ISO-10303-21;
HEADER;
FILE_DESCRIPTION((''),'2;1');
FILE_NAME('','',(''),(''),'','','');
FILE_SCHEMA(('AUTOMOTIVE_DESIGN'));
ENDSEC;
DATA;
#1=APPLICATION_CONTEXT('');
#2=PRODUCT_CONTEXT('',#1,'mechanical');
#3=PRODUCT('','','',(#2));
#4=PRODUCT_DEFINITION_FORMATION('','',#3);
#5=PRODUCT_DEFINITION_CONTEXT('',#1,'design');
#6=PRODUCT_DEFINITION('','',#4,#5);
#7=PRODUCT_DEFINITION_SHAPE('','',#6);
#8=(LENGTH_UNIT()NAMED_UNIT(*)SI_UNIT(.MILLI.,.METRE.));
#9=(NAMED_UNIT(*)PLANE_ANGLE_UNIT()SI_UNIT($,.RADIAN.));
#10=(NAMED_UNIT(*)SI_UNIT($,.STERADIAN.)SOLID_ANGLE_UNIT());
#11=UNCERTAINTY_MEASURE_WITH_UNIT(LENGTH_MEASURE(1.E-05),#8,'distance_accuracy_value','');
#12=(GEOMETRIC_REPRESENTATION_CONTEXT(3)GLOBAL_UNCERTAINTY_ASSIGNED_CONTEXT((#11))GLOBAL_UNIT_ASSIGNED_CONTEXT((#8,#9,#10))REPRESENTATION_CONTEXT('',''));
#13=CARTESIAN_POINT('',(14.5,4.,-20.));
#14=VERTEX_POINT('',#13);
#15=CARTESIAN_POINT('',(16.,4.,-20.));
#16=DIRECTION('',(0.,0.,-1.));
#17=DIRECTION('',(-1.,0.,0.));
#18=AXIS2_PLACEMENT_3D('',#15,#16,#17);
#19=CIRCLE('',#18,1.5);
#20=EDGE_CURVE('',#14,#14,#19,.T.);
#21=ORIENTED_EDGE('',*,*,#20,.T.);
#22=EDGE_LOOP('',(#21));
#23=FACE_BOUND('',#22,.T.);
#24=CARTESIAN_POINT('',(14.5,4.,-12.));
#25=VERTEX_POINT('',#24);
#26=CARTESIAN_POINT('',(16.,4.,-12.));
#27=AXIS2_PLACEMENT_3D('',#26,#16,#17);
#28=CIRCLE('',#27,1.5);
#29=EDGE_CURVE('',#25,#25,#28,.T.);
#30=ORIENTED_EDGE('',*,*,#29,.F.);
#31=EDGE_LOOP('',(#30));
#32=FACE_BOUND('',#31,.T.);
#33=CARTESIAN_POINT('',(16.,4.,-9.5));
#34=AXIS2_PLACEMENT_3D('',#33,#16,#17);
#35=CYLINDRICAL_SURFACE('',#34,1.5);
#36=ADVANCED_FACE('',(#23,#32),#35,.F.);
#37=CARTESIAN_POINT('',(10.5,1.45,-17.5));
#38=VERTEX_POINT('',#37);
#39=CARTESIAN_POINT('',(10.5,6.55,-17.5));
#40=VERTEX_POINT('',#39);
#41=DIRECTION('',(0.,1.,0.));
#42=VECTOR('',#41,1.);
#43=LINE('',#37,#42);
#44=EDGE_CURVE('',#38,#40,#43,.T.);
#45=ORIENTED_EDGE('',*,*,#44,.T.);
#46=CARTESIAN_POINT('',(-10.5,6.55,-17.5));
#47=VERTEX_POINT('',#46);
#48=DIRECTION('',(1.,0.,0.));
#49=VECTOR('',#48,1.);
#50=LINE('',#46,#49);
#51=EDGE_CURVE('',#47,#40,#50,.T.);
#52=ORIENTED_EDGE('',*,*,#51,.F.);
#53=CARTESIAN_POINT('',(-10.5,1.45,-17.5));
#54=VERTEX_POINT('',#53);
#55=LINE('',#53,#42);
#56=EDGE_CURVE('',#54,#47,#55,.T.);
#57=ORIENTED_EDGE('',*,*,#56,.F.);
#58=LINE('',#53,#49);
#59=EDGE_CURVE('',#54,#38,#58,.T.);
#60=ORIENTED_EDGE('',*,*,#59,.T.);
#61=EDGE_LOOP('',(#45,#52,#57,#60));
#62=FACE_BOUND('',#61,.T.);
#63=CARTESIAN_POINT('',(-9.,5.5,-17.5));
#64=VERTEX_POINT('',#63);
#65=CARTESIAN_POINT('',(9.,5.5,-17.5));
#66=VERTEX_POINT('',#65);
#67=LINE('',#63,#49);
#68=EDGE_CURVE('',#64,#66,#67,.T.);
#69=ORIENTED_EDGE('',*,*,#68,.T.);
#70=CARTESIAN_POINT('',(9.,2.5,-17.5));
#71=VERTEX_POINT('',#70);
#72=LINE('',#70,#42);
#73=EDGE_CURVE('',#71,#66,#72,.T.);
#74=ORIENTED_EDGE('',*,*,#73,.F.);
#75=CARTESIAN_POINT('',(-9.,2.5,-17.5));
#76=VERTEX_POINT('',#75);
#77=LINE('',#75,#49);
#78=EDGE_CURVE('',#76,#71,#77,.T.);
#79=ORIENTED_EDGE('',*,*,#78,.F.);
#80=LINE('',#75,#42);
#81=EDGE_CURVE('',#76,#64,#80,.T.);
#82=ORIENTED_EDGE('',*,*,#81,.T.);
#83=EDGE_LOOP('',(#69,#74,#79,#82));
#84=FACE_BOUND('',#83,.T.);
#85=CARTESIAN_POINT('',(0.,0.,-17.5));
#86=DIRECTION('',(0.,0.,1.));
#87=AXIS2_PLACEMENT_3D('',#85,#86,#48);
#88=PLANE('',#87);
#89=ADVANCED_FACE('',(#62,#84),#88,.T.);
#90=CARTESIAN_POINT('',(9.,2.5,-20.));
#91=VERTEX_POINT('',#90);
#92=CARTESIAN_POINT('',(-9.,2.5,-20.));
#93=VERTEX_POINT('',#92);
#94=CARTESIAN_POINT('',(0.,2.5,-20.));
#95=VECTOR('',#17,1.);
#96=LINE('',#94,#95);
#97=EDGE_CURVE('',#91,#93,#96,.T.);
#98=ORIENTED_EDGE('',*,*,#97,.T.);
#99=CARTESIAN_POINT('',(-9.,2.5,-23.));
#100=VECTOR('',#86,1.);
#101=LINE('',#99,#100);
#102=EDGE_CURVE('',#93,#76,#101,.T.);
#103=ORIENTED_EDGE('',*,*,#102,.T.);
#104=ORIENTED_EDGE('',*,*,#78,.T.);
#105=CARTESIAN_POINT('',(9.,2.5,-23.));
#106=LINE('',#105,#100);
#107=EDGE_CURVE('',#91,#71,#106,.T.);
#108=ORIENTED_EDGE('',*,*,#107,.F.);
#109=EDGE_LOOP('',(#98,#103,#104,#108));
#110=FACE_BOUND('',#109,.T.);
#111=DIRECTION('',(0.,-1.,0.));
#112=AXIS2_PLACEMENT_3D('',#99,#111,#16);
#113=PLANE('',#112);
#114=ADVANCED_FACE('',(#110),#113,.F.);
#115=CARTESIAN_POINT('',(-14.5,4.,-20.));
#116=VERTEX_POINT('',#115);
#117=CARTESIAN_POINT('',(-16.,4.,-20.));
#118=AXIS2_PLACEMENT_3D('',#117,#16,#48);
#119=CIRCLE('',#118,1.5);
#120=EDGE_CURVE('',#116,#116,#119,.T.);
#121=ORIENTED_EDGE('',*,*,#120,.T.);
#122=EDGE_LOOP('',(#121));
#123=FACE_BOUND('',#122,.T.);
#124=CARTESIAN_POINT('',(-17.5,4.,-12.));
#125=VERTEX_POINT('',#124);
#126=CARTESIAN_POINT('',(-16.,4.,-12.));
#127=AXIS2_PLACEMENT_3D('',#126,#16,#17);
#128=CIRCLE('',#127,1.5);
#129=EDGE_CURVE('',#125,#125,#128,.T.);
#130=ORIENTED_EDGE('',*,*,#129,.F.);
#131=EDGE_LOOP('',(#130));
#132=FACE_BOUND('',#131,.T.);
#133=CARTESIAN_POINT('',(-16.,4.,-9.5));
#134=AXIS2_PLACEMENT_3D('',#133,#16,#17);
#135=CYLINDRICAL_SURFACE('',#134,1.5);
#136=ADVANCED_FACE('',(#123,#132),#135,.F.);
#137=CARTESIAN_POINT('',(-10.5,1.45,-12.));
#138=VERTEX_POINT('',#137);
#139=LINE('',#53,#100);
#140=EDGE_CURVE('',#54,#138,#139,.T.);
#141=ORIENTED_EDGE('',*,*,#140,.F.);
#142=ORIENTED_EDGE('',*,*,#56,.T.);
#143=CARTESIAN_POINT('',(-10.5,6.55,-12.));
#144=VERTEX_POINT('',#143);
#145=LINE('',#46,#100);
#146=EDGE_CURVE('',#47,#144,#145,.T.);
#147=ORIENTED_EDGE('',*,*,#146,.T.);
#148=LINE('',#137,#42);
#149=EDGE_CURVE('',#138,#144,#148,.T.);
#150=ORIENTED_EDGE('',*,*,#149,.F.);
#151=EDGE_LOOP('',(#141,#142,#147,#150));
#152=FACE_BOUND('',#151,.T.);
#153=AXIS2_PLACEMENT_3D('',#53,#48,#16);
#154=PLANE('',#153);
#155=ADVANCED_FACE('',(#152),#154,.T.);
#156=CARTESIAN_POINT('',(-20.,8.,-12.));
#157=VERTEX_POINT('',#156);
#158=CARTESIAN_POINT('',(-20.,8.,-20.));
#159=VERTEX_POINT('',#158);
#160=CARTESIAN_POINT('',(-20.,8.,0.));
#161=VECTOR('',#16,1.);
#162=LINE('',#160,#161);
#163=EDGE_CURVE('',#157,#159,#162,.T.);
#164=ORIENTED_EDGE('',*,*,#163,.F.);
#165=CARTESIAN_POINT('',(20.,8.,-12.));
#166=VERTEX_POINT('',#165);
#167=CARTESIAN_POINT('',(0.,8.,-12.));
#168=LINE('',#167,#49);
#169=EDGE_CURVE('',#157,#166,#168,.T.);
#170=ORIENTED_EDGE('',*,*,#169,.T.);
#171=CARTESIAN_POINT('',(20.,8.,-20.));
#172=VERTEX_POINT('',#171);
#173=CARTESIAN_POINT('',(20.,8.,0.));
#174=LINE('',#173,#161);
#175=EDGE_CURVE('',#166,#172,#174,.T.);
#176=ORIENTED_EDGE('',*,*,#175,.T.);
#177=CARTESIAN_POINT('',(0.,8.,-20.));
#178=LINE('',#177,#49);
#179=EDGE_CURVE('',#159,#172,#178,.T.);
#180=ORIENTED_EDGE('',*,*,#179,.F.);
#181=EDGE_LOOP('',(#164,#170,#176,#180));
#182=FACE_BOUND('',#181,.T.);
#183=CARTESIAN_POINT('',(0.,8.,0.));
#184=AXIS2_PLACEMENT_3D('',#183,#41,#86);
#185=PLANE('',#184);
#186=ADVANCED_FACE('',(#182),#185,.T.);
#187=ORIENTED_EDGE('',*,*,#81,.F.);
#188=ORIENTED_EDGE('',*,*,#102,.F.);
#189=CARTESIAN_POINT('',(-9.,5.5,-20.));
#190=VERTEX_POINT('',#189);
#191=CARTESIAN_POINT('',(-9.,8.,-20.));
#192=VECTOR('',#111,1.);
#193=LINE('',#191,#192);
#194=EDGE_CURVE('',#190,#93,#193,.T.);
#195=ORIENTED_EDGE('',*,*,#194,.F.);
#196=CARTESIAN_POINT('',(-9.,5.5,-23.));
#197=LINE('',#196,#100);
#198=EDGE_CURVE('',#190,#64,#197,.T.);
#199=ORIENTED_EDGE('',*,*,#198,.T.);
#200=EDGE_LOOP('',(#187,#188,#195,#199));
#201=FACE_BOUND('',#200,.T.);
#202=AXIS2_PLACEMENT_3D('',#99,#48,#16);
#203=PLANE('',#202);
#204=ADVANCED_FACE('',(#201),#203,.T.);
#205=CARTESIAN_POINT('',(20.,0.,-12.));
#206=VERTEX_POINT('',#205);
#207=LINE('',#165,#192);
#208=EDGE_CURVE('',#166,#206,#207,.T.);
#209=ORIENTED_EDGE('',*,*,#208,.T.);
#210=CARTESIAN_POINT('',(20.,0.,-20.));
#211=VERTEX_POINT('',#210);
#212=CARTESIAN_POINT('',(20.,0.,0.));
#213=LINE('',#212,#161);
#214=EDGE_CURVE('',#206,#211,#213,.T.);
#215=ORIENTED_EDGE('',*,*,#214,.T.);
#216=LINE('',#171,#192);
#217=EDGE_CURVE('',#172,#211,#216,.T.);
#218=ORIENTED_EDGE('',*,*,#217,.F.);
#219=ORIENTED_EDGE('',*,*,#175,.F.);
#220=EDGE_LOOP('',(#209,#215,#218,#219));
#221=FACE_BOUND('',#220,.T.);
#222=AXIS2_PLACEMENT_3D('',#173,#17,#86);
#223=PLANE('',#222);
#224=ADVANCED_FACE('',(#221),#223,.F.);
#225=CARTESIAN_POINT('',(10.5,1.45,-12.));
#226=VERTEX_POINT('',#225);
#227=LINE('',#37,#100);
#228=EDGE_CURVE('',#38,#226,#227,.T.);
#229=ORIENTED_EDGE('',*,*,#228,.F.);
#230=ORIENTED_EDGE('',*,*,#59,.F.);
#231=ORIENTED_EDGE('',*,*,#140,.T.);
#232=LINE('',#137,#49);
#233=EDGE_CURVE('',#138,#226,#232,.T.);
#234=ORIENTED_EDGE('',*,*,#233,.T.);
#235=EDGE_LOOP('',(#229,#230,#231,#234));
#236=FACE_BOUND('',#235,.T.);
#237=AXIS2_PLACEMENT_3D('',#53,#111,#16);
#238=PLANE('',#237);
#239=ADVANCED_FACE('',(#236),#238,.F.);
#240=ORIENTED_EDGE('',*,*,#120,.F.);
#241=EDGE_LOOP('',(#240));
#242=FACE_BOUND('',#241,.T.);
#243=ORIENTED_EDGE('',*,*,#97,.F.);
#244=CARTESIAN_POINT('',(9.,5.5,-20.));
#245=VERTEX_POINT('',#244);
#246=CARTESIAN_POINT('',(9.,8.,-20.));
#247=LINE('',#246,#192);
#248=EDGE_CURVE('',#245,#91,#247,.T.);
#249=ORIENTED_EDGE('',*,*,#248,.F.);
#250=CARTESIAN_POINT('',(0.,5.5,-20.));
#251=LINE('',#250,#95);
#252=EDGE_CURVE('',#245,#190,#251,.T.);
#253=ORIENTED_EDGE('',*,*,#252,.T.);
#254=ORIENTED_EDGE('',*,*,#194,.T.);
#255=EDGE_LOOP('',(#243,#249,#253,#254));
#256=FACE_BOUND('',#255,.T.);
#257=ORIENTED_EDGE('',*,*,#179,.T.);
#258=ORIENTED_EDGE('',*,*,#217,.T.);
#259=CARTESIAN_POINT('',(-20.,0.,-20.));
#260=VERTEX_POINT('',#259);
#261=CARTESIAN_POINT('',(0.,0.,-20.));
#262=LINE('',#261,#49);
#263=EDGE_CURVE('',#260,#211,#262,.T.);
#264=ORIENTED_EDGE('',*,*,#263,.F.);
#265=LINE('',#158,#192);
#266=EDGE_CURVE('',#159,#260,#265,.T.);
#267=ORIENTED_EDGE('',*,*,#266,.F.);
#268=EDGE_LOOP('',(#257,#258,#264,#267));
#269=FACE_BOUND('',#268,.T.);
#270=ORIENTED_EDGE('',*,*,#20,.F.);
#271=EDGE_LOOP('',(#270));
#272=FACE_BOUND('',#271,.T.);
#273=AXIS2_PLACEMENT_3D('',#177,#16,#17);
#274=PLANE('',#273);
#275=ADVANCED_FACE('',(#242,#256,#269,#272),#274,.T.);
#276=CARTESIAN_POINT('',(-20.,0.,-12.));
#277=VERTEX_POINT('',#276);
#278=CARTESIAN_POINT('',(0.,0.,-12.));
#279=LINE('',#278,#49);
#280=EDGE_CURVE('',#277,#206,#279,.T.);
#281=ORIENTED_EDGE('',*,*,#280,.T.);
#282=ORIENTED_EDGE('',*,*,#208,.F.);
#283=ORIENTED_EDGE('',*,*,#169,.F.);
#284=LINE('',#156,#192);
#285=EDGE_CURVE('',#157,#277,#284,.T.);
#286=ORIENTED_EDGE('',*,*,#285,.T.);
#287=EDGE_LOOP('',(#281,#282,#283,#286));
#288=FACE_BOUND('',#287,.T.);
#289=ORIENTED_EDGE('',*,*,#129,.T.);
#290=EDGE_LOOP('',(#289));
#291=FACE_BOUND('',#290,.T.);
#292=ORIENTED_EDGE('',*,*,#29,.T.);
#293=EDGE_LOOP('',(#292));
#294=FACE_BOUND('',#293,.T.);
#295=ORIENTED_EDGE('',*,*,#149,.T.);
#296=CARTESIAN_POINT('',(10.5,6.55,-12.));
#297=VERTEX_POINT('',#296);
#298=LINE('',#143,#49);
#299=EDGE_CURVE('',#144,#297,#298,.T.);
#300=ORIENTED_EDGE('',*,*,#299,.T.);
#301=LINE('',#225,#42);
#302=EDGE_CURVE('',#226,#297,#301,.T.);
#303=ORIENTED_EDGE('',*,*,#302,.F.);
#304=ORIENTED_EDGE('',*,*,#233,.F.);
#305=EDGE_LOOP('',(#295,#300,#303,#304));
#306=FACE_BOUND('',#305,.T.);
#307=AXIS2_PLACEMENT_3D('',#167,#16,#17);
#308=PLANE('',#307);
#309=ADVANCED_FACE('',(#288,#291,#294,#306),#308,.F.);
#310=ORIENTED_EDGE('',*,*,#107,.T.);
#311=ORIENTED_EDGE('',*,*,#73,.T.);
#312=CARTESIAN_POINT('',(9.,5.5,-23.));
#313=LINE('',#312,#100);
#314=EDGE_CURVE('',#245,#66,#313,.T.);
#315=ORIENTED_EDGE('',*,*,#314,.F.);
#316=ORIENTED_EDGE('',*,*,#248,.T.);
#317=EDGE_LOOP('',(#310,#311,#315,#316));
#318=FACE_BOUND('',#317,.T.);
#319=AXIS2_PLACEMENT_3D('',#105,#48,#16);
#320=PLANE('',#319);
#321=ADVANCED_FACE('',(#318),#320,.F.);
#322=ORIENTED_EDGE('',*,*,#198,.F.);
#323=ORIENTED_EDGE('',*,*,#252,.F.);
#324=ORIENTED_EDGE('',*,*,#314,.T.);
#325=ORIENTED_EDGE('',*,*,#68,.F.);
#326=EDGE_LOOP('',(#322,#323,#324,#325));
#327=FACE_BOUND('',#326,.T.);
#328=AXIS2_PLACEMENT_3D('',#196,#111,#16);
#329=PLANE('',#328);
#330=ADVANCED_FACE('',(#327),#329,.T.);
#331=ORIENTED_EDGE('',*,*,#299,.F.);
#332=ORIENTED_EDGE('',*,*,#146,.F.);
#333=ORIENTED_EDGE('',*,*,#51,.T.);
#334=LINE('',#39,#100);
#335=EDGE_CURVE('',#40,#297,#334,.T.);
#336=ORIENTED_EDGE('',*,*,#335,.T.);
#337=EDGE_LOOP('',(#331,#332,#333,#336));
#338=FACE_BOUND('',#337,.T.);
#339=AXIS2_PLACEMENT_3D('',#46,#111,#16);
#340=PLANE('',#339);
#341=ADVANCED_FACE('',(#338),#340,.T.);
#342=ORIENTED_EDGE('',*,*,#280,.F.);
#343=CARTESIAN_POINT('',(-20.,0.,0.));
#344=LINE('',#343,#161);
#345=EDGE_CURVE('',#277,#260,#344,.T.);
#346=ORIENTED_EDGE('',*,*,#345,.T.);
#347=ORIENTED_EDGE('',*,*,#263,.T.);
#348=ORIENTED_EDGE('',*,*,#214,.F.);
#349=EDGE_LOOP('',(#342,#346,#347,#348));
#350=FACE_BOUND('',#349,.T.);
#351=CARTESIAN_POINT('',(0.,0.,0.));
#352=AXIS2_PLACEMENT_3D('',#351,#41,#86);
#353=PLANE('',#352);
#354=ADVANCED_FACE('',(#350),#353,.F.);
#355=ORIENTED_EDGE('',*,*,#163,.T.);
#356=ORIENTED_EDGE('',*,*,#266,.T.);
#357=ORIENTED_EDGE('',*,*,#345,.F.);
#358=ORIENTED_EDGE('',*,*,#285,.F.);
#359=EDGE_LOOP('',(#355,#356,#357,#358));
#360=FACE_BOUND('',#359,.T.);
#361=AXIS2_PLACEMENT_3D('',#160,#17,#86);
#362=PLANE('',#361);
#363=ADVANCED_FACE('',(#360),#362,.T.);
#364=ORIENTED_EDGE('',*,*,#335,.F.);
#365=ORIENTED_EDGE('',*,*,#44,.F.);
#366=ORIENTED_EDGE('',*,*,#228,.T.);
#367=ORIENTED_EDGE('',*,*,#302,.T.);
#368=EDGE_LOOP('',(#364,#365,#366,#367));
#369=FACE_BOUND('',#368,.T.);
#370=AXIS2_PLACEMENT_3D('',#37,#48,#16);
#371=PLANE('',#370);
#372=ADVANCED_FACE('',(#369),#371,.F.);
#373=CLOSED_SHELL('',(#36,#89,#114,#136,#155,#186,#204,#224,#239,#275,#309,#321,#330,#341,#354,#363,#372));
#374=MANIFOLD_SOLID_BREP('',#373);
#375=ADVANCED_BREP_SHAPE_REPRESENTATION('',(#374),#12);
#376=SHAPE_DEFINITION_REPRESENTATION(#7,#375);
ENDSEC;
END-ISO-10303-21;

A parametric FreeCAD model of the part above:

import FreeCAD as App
import Part
import Sketcher

doc = App.newDocument("Part")
body = doc.addObject("PartDesign::Body", "Body")

sketch1 = body.newObject("Sketcher::SketchObject", "Sketch")
sketch1.AttachmentSupport = (doc.getObject("XZ_Plane"), [""])
sketch1.MapMode = "FlatFace"
sketch1.addGeometry([
    Part.LineSegment(App.Vector(-20, -20, 0), App.Vector(-20, -12, 0)),
    Part.LineSegment(App.Vector(-20, -12, 0), App.Vector(20, -12, 0)),
    Part.LineSegment(App.Vector(20, -12, 0), App.Vector(20, -20, 0)),
    Part.LineSegment(App.Vector(20, -20, 0), App.Vector(-20, -20, 0)),
], False)
sketch1.addConstraint([
    Sketcher.Constraint("Coincident", 0, 2, 1, 1),
    Sketcher.Constraint("Coincident", 1, 2, 2, 1),
    Sketcher.Constraint("Coincident", 2, 2, 3, 1),
    Sketcher.Constraint("Coincident", 3, 2, 0, 1),
    Sketcher.Constraint("Vertical", 0),
    Sketcher.Constraint("Horizontal", 1),
    Sketcher.Constraint("Vertical", 2),
    Sketcher.Constraint("Horizontal", 3),
    Sketcher.Constraint("DistanceX", 1, 1, 1, 2, 40.0),
    Sketcher.Constraint("DistanceY", 0, 1, 0, 2, 8.0),
    Sketcher.Constraint("DistanceX", 0, 2, -1, 1, 20.0),
    Sketcher.Constraint("DistanceY", 0, 2, -1, 1, 12.0),
])
pad1 = body.newObject("PartDesign::Pad", "Pad")
pad1.Profile = sketch1
pad1.Length = 8
pad1.Reversed = True

sketch2 = body.newObject("Sketcher::SketchObject", "Sketch001")
sketch2.AttachmentSupport = (doc.getObject("XY_Plane"), [""])
sketch2.MapMode = "FlatFace"
sketch2.AttachmentOffset = App.Placement(App.Vector(0, 0, -12), App.Rotation())
sketch2.addGeometry([
    Part.LineSegment(App.Vector(-10, 7, 0), App.Vector(-10, 1, 0)),
    Part.LineSegment(App.Vector(-10, 1, 0), App.Vector(10, 1, 0)),
    Part.LineSegment(App.Vector(10, 1, 0), App.Vector(10, 7, 0)),
    Part.LineSegment(App.Vector(10, 7, 0), App.Vector(-10, 7, 0)),
], False)
sketch2.addConstraint([
    Sketcher.Constraint("Coincident", 0, 2, 1, 1),
    Sketcher.Constraint("Coincident", 1, 2, 2, 1),
    Sketcher.Constraint("Coincident", 2, 2, 3, 1),
    Sketcher.Constraint("Coincident", 3, 2, 0, 1),
    Sketcher.Constraint("Vertical", 0),
    Sketcher.Constraint("Horizontal", 1),
    Sketcher.Constraint("Vertical", 2),
    Sketcher.Constraint("Horizontal", 3),
    Sketcher.Constraint("DistanceX", 1, 1, 1, 2, 21.0),
    Sketcher.Constraint("DistanceY", 0, 2, 0, 1, 5.1),
    Sketcher.Constraint("DistanceX", 0, 2, -1, 1, 10.5),
    Sketcher.Constraint("DistanceY", -1, 1, 0, 2, 1.45),
])
pocket1 = body.newObject("PartDesign::Pocket", "Pocket")
pocket1.Profile = sketch2
pocket1.Length = 5.5

sketch3 = body.newObject("Sketcher::SketchObject", "Sketch002")
sketch3.AttachmentSupport = (doc.getObject("XY_Plane"), [""])
sketch3.MapMode = "FlatFace"
sketch3.AttachmentOffset = App.Placement(App.Vector(0, 0, -17.5), App.Rotation())
sketch3.addGeometry([
    Part.LineSegment(App.Vector(-9, 5.5, 0), App.Vector(-9, 2.5, 0)),
    Part.LineSegment(App.Vector(-9, 2.5, 0), App.Vector(9, 2.5, 0)),
    Part.LineSegment(App.Vector(9, 2.5, 0), App.Vector(9, 5.5, 0)),
    Part.LineSegment(App.Vector(9, 5.5, 0), App.Vector(-9, 5.5, 0)),
], False)
sketch3.addConstraint([
    Sketcher.Constraint("Coincident", 0, 2, 1, 1),
    Sketcher.Constraint("Coincident", 1, 2, 2, 1),
    Sketcher.Constraint("Coincident", 2, 2, 3, 1),
    Sketcher.Constraint("Coincident", 3, 2, 0, 1),
    Sketcher.Constraint("Vertical", 0),
    Sketcher.Constraint("Horizontal", 1),
    Sketcher.Constraint("Vertical", 2),
    Sketcher.Constraint("Horizontal", 3),
    Sketcher.Constraint("DistanceX", 1, 1, 1, 2, 18.0),
    Sketcher.Constraint("DistanceY", 0, 2, 0, 1, 3.0),
    Sketcher.Constraint("DistanceX", 0, 2, -1, 1, 9.0),
    Sketcher.Constraint("DistanceY", -1, 1, 0, 2, 2.5),
])
pocket2 = body.newObject("PartDesign::Pocket", "Pocket001")
pocket2.Profile = sketch3
pocket2.Length = 5.5

sketch4 = body.newObject("Sketcher::SketchObject", "Sketch003")
sketch4.AttachmentSupport = (doc.getObject("XY_Plane"), [""])
sketch4.MapMode = "FlatFace"
sketch4.AttachmentOffset = App.Placement(App.Vector(0, 0, -20), App.Rotation())
sketch4.addGeometry([
    Part.Circle(App.Vector(16, 4, 0), App.Vector(0, 0, 1), 1.5),
    Part.Circle(App.Vector(-16, 4, 0), App.Vector(0, 0, 1), 1.5),
], False)
sketch4.addConstraint([
    Sketcher.Constraint("Equal", 0, 1),
    Sketcher.Constraint("Symmetric", 0, 3, 1, 3, -2),
    Sketcher.Constraint("Diameter", 0, 3.0),
    Sketcher.Constraint("DistanceX", -1, 1, 0, 3, 16.0),
    Sketcher.Constraint("DistanceY", -1, 1, 0, 3, 4.0),
])
pocket3 = body.newObject("PartDesign::Pocket", "Pocket002")
pocket3.Profile = sketch4
pocket3.Length = 10.5
pocket3.Reversed = True

doc.recompute()
